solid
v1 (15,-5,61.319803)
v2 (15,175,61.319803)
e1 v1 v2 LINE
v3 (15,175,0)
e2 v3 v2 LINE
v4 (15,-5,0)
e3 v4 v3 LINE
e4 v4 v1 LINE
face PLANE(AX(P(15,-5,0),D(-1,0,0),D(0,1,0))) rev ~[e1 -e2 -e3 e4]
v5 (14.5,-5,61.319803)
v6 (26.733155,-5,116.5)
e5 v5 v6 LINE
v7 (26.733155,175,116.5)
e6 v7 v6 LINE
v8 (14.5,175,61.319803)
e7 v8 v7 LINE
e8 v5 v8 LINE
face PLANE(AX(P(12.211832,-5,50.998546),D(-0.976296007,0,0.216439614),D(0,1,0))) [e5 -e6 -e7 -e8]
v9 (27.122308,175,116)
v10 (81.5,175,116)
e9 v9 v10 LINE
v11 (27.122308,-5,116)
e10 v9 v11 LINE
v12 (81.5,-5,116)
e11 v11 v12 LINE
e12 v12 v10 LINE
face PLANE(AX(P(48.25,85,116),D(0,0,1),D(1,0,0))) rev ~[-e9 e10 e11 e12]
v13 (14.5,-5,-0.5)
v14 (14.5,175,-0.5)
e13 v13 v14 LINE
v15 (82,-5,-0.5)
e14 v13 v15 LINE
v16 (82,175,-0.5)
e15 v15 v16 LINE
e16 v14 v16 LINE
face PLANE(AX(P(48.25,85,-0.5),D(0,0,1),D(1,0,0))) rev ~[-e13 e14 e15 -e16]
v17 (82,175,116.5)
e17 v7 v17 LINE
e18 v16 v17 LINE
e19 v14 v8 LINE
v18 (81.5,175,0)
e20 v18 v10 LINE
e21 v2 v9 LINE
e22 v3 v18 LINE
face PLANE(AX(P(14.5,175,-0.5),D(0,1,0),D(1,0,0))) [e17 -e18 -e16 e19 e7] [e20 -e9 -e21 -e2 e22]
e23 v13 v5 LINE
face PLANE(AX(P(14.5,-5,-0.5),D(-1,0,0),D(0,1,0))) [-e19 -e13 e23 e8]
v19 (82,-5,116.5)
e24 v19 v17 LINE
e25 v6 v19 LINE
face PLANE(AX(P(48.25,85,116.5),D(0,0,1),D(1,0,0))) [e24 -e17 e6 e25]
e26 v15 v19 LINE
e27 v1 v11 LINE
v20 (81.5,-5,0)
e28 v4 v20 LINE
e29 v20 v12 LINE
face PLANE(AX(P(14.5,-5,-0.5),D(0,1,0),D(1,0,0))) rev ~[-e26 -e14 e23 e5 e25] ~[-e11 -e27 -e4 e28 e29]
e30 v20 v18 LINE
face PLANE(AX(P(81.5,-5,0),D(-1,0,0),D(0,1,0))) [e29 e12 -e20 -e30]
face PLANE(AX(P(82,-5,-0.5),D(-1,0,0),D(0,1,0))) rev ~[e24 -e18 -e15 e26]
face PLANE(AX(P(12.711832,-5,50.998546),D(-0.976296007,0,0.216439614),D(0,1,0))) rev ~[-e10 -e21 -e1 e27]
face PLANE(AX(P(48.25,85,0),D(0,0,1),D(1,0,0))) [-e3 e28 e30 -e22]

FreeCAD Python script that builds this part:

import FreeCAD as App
import Part
import Sketcher

V = App.Vector

doc = App.newDocument("Part")
body = doc.addObject("PartDesign::Body", "Body")

# Sketch on XY plane
sketch1 = body.newObject("Sketcher::SketchObject", "Sketch")
sketch1.AttachmentSupport = (doc.getObject("XY_Plane"), [""])
sketch1.MapMode = "FlatFace"
sketch1.addGeometry([
    Part.LineSegment(V(0, 180, 0), V(0, 0, 0)),
    Part.LineSegment(V(0, 0, 0), V(67, 0, 0)),
    Part.LineSegment(V(67, 0, 0), V(67, 180, 0)),
    Part.LineSegment(V(67, 180, 0), V(0, 180, 0)),
], False)
sketch1.addConstraint([
    Sketcher.Constraint("Coincident", 0, 2, 1, 1),
    Sketcher.Constraint("Coincident", 1, 2, 2, 1),
    Sketcher.Constraint("Coincident", 2, 2, 3, 1),
    Sketcher.Constraint("Coincident", 3, 2, 0, 1),
    Sketcher.Constraint("Vertical", 0),
    Sketcher.Constraint("Horizontal", 1),
    Sketcher.Constraint("Vertical", 2),
    Sketcher.Constraint("Horizontal", 3),
    Sketcher.Constraint("Coincident", 0, 2, -1, 1),
    Sketcher.Constraint("DistanceX", 1, 1, 1, 2, 67.0),
    Sketcher.Constraint("DistanceY", 0, 2, 0, 1, 180.0),
])
pad1 = body.newObject("PartDesign::Pad", "Pad")
pad1.Profile = sketch1
pad1.Length = 116
body2 = doc.addObject("PartDesign::Body", "Body001")
doc.recompute()

body.Placement = App.Placement(V(0, 0, 0), App.Rotation(V(0, 1, 0), 12.5))
boolean = body2.newObject("PartDesign::Boolean", "Boolean")
boolean.Type = "Fuse"
boolean.addObjects([body])
body3 = doc.addObject("PartDesign::Body", "Body002")
doc.recompute()

body2.Placement = App.Placement(V(-53.2, 0, 65), App.Rotation(V(0, 0, 1), 0))
boolean2 = body3.newObject("PartDesign::Boolean", "Boolean001")
boolean2.Type = "Fuse"
boolean2.addObjects([body2])
body4 = doc.addObject("PartDesign::Body", "Body003")

# Sketch on XY plane
sketch2 = body4.newObject("Sketcher::SketchObject", "Sketch001")
sketch2.AttachmentSupport = (doc.getObject("XY_Plane003"), [""])
sketch2.MapMode = "FlatFace"
sketch2.AttachmentOffset = App.Placement(V(0, 0, -0.5), App.Rotation())
sketch2.addGeometry([
    Part.LineSegment(V(14, 180, 0), V(14, 0, 0)),
    Part.LineSegment(V(14, 0, 0), V(81, 0, 0)),
    Part.LineSegment(V(81, 0, 0), V(81, 180, 0)),
    Part.LineSegment(V(81, 180, 0), V(14, 180, 0)),
], False)
sketch2.addConstraint([
    Sketcher.Constraint("Coincident", 0, 2, 1, 1),
    Sketcher.Constraint("Coincident", 1, 2, 2, 1),
    Sketcher.Constraint("Coincident", 2, 2, 3, 1),
    Sketcher.Constraint("Coincident", 3, 2, 0, 1),
    Sketcher.Constraint("Vertical", 0),
    Sketcher.Constraint("Horizontal", 1),
    Sketcher.Constraint("Vertical", 2),
    Sketcher.Constraint("Horizontal", 3),
    Sketcher.Constraint("PointOnObject", 0, 2, -1),
    Sketcher.Constraint("DistanceY", 0, 2, 0, 1, 180.0),
    Sketcher.Constraint("DistanceX", 1, 1, 1, 2, 66.5),
    Sketcher.Constraint("DistanceX", -1, 1, 1, 2, 81.0),
])
pad2 = body4.newObject("PartDesign::Pad", "Pad001")
pad2.Profile = sketch2
pad2.Length = 116
doc.recompute()

boolean3 = body4.newObject("PartDesign::Boolean", "Boolean002")
boolean3.Type = "Cut"
boolean3.addObjects([body3])
body5 = doc.addObject("PartDesign::Body", "Body004")
doc.recompute()

body4.Placement = App.Placement(V(0, -2, 0), App.Rotation(V(0, 0, 1), 0))
boolean4 = body5.newObject("PartDesign::Boolean", "Boolean003")
boolean4.Type = "Fuse"
boolean4.addObjects([body4])
body6 = doc.addObject("PartDesign::Body", "Body005")

# Sketch on XY plane
sketch3 = body6.newObject("Sketcher::SketchObject", "Sketch002")
sketch3.AttachmentSupport = (doc.getObject("XY_Plane005"), [""])
sketch3.MapMode = "FlatFace"
sketch3.addGeometry([
    Part.LineSegment(V(0, 180, 0), V(0, 0, 0)),
    Part.LineSegment(V(0, 0, 0), V(67, 0, 0)),
    Part.LineSegment(V(67, 0, 0), V(67, 180, 0)),
    Part.LineSegment(V(67, 180, 0), V(0, 180, 0)),
], False)
sketch3.addConstraint([
    Sketcher.Constraint("Coincident", 0, 2, 1, 1),
    Sketcher.Constraint("Coincident", 1, 2, 2, 1),
    Sketcher.Constraint("Coincident", 2, 2, 3, 1),
    Sketcher.Constraint("Coincident", 3, 2, 0, 1),
    Sketcher.Constraint("Vertical", 0),
    Sketcher.Constraint("Horizontal", 1),
    Sketcher.Constraint("Vertical", 2),
    Sketcher.Constraint("Horizontal", 3),
    Sketcher.Constraint("Coincident", 0, 2, -1, 1),
    Sketcher.Constraint("DistanceX", 1, 1, 1, 2, 67.0),
    Sketcher.Constraint("DistanceY", 0, 2, 0, 1, 180.0),
])
pad3 = body6.newObject("PartDesign::Pad", "Pad002")
pad3.Profile = sketch3
pad3.Length = 116
body7 = doc.addObject("PartDesign::Body", "Body006")
doc.recompute()

body6.Placement = App.Placement(V(0, 0, 0), App.Rotation(V(0, 1, 0), 12.5))
boolean5 = body7.newObject("PartDesign::Boolean", "Boolean004")
boolean5.Type = "Fuse"
boolean5.addObjects([body6])
body8 = doc.addObject("PartDesign::Body", "Body007")
doc.recompute()

body7.Placement = App.Placement(V(-53.7, 0, 65), App.Rotation(V(0, 0, 1), 0))
boolean6 = body8.newObject("PartDesign::Boolean", "Boolean005")
boolean6.Type = "Fuse"
boolean6.addObjects([body7])
body9 = doc.addObject("PartDesign::Body", "Body008")

# Sketch on XY plane
sketch4 = body9.newObject("Sketcher::SketchObject", "Sketch003")
sketch4.AttachmentSupport = (doc.getObject("XY_Plane008"), [""])
sketch4.MapMode = "FlatFace"
sketch4.AttachmentOffset = App.Placement(V(0, 0, -1), App.Rotation())
sketch4.addGeometry([
    Part.LineSegment(V(14, 180, 0), V(14, 0, 0)),
    Part.LineSegment(V(14, 0, 0), V(82, 0, 0)),
    Part.LineSegment(V(82, 0, 0), V(82, 180, 0)),
    Part.LineSegment(V(82, 180, 0), V(14, 180, 0)),
], False)
sketch4.addConstraint([
    Sketcher.Constraint("Coincident", 0, 2, 1, 1),
    Sketcher.Constraint("Coincident", 1, 2, 2, 1),
    Sketcher.Constraint("Coincident", 2, 2, 3, 1),
    Sketcher.Constraint("Coincident", 3, 2, 0, 1),
    Sketcher.Constraint("Vertical", 0),
    Sketcher.Constraint("Horizontal", 1),
    Sketcher.Constraint("Vertical", 2),
    Sketcher.Constraint("Horizontal", 3),
    Sketcher.Constraint("PointOnObject", 0, 2, -1),
    Sketcher.Constraint("DistanceY", 0, 2, 0, 1, 180.0),
    Sketcher.Constraint("DistanceX", 1, 1, 1, 2, 67.5),
    Sketcher.Constraint("DistanceX", -1, 1, 0, 2, 14.0),
])
pad4 = body9.newObject("PartDesign::Pad", "Pad003")
pad4.Profile = sketch4
pad4.Length = 117
doc.recompute()

boolean7 = body9.newObject("PartDesign::Boolean", "Boolean006")
boolean7.Type = "Cut"
boolean7.addObjects([body8])
body10 = doc.addObject("PartDesign::Body", "Body009")
doc.recompute()

body9.Placement = App.Placement(V(0, -2, 0), App.Rotation(V(0, 0, 1), 0))
boolean8 = body10.newObject("PartDesign::Boolean", "Boolean007")
boolean8.Type = "Fuse"
boolean8.addObjects([body9])
doc.recompute()

boolean9 = body10.newObject("PartDesign::Boolean", "Boolean008")
boolean9.Type = "Cut"
boolean9.addObjects([body5])
body11 = doc.addObject("PartDesign::Body", "Body010")
doc.recompute()

body10.Placement = App.Placement(V(0.5, -3, 0.5), App.Rotation(V(0, 0, 1), 0))
boolean10 = body11.newObject("PartDesign::Boolean", "Boolean009")
boolean10.Type = "Fuse"
boolean10.addObjects([body10])

doc.recompute()
